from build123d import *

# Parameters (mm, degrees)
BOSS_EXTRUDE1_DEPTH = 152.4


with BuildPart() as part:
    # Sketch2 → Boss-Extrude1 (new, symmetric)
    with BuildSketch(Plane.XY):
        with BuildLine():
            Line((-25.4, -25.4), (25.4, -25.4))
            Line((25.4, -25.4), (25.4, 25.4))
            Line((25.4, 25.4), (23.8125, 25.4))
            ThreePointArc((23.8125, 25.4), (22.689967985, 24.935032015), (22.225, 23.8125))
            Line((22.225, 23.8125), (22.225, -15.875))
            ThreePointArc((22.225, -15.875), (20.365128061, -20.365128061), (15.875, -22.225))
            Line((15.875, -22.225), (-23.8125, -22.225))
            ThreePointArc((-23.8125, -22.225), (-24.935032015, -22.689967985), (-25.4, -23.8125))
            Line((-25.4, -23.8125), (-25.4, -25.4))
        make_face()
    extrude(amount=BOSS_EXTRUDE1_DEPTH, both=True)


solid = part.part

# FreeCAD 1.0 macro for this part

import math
import FreeCAD as App
import Part
import Sketcher
from FreeCAD import Vector
Q = App.Units.Quantity

doc = App.newDocument("Part")
body = doc.addObject("PartDesign::Body", "Body")

sketch1 = doc.addObject("Sketcher::SketchObject", "Sketch")
body.addObject(sketch1)
sketch1.AttachmentSupport = (doc.XY_Plane, [""])
sketch1.MapMode = "FlatFace"
sketch1.addGeometry([
    Part.LineSegment(Vector(-25.4, -25.4, 0), Vector(25.4, -25.4, 0)),
    Part.LineSegment(Vector(25.4, -25.4, 0), Vector(25.4, 25.4, 0)),
    Part.LineSegment(Vector(25.4, 25.4, 0), Vector(23.8, 25.4, 0)),
    Part.ArcOfCircle(Part.Circle(Vector(23.8, 23.8, 0), Vector(0, 0, 1), 1.6), math.radians(90), math.radians(180)),
    Part.LineSegment(Vector(22.2, 23.8, 0), Vector(22.2, -15.9, 0)),
    Part.ArcOfCircle(Part.Circle(Vector(15.9, -15.9, 0), Vector(0, 0, 1), 6.3), math.radians(-90), math.radians(0)),
    Part.LineSegment(Vector(15.9, -22.2, 0), Vector(-23.8, -22.2, 0)),
    Part.ArcOfCircle(Part.Circle(Vector(-23.8, -23.8, 0), Vector(0, 0, 1), 1.6), math.radians(90), math.radians(180)),
    Part.LineSegment(Vector(-25.4, -23.8, 0), Vector(-25.4, -25.4, 0)),
], False)
sketch1.addConstraint([
    Sketcher.Constraint("Coincident", 0, 2, 1, 1),
    Sketcher.Constraint("Coincident", 1, 2, 2, 1),
    Sketcher.Constraint("Tangent", 2, 2, 3, 1),
    Sketcher.Constraint("Tangent", 3, 2, 4, 1),
    Sketcher.Constraint("Tangent", 4, 2, 5, 2),
    Sketcher.Constraint("Tangent", 5, 1, 6, 1),
    Sketcher.Constraint("Tangent", 6, 2, 7, 1),
    Sketcher.Constraint("Tangent", 7, 2, 8, 1),
    Sketcher.Constraint("Coincident", 8, 2, 0, 1),
    Sketcher.Constraint("Horizontal", 0),
    Sketcher.Constraint("Vertical", 1),
    Sketcher.Constraint("Horizontal", 2),
    Sketcher.Constraint("Vertical", 4),
    Sketcher.Constraint("Horizontal", 6),
    Sketcher.Constraint("Vertical", 8),
    Sketcher.Constraint("Equal", 3, 7),
    Sketcher.Constraint("Symmetric", 3, 3, 7, 3, -1, 1),
    Sketcher.Constraint("Symmetric", 1, 2, 8, 2, -1, 1),
    Sketcher.Constraint("Equal", 0, 1),
    Sketcher.Constraint("DistanceX", 0, 1, 0, 2, Q("2 in")),
    Sketcher.Constraint("Radius", 5, Q("0.25 in")),
    Sketcher.Constraint("Radius", 3, Q("0.0625 in")),
])
pad1 = doc.addObject("PartDesign::Pad", "Pad")
body.addObject(pad1)
pad1.Profile = sketch1
pad1.Length = Q("12 in")
pad1.Midplane = True

doc.recompute()
